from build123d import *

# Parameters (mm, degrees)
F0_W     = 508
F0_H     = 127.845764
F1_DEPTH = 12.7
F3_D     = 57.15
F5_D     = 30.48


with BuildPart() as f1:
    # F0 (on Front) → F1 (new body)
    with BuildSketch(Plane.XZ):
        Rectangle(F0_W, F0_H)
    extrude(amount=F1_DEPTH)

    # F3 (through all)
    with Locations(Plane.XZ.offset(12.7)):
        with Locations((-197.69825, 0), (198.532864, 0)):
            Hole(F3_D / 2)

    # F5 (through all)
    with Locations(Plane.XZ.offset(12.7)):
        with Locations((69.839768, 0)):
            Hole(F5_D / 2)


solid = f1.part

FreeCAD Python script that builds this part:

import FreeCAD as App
import Part
import Sketcher
from FreeCAD import Vector
Q = App.Units.Quantity


def add_polygon(sketch, points):
    """Adds a closed chain of lines whose ends are joined by coincident constraints."""
    first, n = sketch.GeometryCount, len(points)
    for a, b in zip(points, points[1:] + points[:1]):
        sketch.addGeometry(Part.LineSegment(App.Vector(*a, 0), App.Vector(*b, 0)), False)
    for i in range(n):
        sketch.addConstraint(Sketcher.Constraint("Coincident", first + i, 2, first + (i + 1) % n, 1))

doc = App.newDocument("Part")
body = doc.addObject("PartDesign::Body", "Body")

# Sketch on XZ plane
sketch1 = body.newObject("Sketcher::SketchObject", "Sketch")
sketch1.AttachmentSupport = (doc.getObject("XZ_Plane"), [""])
sketch1.MapMode = "FlatFace"
add_polygon(sketch1, [(-254, 63.922882), (-254, -63.922882), (254, -63.922882), (254, 63.922882)])  # lines 0-3
sketch1.addConstraint(Sketcher.Constraint("Vertical", 0))
sketch1.addConstraint(Sketcher.Constraint("Horizontal", 1))
sketch1.addConstraint(Sketcher.Constraint("Vertical", 2))
sketch1.addConstraint(Sketcher.Constraint("Horizontal", 3))
sketch1.addConstraint(Sketcher.Constraint("Symmetric", 0, 2, 2, 2, -1, 1))
sketch1.addConstraint(Sketcher.Constraint("DistanceX", 1, 1, 1, 2, Q("20 in")))
sketch1.addConstraint(Sketcher.Constraint("DistanceY", 0, 2, 0, 1, 127.845764))
pad1 = body.newObject("PartDesign::Pad", "Pad")
pad1.Profile = sketch1
pad1.Length = Q("0.5 in")

# Sketch on XZ plane
sketch2 = body.newObject("Sketcher::SketchObject", "Sketch001")
sketch2.AttachmentSupport = (doc.getObject("XZ_Plane"), [""])
sketch2.MapMode = "FlatFace"
sketch2.AttachmentOffset = App.Placement(Vector(0, 0, 0.5 * 25.4), App.Rotation())
sketch2.addGeometry(Part.Circle(Vector(-197.69825, 0, 0), Vector(0, 0, 1), 28.575), False)
sketch2.addGeometry(Part.Circle(Vector(198.532864, 0, 0), Vector(0, 0, 1), 28.575), False)
sketch2.addConstraint(Sketcher.Constraint("Equal", 0, 1))
sketch2.addConstraint(Sketcher.Constraint("PointOnObject", 0, 3, -1))
sketch2.addConstraint(Sketcher.Constraint("PointOnObject", 1, 3, -1))
sketch2.addConstraint(Sketcher.Constraint("Diameter", 0, Q("2.25 in")))
sketch2.addConstraint(Sketcher.Constraint("DistanceX", 0, 3, -1, 1, 197.69825))
sketch2.addConstraint(Sketcher.Constraint("DistanceX", -1, 1, 1, 3, 198.532864))
doc.recompute()
hole = body.newObject("PartDesign::Hole", "Hole")
hole.Profile = sketch2
hole.ThreadType = "None"
hole.Diameter = Q("2.25 in")
hole.DepthType = "ThroughAll"

# Sketch on XZ plane
sketch3 = body.newObject("Sketcher::SketchObject", "Sketch002")
sketch3.AttachmentSupport = (doc.getObject("XZ_Plane"), [""])
sketch3.MapMode = "FlatFace"
sketch3.AttachmentOffset = App.Placement(Vector(0, 0, 0.5 * 25.4), App.Rotation())
sketch3.addGeometry(Part.Circle(Vector(69.839768, 0, 0), Vector(0, 0, 1), 15.24), False)
sketch3.addConstraint(Sketcher.Constraint("PointOnObject", 0, 3, -1))
sketch3.addConstraint(Sketcher.Constraint("Diameter", 0, Q("1.2 in")))
sketch3.addConstraint(Sketcher.Constraint("DistanceX", -1, 1, 0, 3, 69.839768))
doc.recompute()
hole2 = body.newObject("PartDesign::Hole", "Hole001")
hole2.Profile = sketch3
hole2.ThreadType = "None"
hole2.Diameter = Q("1.2 in")
hole2.DepthType = "ThroughAll"

doc.recompute()
